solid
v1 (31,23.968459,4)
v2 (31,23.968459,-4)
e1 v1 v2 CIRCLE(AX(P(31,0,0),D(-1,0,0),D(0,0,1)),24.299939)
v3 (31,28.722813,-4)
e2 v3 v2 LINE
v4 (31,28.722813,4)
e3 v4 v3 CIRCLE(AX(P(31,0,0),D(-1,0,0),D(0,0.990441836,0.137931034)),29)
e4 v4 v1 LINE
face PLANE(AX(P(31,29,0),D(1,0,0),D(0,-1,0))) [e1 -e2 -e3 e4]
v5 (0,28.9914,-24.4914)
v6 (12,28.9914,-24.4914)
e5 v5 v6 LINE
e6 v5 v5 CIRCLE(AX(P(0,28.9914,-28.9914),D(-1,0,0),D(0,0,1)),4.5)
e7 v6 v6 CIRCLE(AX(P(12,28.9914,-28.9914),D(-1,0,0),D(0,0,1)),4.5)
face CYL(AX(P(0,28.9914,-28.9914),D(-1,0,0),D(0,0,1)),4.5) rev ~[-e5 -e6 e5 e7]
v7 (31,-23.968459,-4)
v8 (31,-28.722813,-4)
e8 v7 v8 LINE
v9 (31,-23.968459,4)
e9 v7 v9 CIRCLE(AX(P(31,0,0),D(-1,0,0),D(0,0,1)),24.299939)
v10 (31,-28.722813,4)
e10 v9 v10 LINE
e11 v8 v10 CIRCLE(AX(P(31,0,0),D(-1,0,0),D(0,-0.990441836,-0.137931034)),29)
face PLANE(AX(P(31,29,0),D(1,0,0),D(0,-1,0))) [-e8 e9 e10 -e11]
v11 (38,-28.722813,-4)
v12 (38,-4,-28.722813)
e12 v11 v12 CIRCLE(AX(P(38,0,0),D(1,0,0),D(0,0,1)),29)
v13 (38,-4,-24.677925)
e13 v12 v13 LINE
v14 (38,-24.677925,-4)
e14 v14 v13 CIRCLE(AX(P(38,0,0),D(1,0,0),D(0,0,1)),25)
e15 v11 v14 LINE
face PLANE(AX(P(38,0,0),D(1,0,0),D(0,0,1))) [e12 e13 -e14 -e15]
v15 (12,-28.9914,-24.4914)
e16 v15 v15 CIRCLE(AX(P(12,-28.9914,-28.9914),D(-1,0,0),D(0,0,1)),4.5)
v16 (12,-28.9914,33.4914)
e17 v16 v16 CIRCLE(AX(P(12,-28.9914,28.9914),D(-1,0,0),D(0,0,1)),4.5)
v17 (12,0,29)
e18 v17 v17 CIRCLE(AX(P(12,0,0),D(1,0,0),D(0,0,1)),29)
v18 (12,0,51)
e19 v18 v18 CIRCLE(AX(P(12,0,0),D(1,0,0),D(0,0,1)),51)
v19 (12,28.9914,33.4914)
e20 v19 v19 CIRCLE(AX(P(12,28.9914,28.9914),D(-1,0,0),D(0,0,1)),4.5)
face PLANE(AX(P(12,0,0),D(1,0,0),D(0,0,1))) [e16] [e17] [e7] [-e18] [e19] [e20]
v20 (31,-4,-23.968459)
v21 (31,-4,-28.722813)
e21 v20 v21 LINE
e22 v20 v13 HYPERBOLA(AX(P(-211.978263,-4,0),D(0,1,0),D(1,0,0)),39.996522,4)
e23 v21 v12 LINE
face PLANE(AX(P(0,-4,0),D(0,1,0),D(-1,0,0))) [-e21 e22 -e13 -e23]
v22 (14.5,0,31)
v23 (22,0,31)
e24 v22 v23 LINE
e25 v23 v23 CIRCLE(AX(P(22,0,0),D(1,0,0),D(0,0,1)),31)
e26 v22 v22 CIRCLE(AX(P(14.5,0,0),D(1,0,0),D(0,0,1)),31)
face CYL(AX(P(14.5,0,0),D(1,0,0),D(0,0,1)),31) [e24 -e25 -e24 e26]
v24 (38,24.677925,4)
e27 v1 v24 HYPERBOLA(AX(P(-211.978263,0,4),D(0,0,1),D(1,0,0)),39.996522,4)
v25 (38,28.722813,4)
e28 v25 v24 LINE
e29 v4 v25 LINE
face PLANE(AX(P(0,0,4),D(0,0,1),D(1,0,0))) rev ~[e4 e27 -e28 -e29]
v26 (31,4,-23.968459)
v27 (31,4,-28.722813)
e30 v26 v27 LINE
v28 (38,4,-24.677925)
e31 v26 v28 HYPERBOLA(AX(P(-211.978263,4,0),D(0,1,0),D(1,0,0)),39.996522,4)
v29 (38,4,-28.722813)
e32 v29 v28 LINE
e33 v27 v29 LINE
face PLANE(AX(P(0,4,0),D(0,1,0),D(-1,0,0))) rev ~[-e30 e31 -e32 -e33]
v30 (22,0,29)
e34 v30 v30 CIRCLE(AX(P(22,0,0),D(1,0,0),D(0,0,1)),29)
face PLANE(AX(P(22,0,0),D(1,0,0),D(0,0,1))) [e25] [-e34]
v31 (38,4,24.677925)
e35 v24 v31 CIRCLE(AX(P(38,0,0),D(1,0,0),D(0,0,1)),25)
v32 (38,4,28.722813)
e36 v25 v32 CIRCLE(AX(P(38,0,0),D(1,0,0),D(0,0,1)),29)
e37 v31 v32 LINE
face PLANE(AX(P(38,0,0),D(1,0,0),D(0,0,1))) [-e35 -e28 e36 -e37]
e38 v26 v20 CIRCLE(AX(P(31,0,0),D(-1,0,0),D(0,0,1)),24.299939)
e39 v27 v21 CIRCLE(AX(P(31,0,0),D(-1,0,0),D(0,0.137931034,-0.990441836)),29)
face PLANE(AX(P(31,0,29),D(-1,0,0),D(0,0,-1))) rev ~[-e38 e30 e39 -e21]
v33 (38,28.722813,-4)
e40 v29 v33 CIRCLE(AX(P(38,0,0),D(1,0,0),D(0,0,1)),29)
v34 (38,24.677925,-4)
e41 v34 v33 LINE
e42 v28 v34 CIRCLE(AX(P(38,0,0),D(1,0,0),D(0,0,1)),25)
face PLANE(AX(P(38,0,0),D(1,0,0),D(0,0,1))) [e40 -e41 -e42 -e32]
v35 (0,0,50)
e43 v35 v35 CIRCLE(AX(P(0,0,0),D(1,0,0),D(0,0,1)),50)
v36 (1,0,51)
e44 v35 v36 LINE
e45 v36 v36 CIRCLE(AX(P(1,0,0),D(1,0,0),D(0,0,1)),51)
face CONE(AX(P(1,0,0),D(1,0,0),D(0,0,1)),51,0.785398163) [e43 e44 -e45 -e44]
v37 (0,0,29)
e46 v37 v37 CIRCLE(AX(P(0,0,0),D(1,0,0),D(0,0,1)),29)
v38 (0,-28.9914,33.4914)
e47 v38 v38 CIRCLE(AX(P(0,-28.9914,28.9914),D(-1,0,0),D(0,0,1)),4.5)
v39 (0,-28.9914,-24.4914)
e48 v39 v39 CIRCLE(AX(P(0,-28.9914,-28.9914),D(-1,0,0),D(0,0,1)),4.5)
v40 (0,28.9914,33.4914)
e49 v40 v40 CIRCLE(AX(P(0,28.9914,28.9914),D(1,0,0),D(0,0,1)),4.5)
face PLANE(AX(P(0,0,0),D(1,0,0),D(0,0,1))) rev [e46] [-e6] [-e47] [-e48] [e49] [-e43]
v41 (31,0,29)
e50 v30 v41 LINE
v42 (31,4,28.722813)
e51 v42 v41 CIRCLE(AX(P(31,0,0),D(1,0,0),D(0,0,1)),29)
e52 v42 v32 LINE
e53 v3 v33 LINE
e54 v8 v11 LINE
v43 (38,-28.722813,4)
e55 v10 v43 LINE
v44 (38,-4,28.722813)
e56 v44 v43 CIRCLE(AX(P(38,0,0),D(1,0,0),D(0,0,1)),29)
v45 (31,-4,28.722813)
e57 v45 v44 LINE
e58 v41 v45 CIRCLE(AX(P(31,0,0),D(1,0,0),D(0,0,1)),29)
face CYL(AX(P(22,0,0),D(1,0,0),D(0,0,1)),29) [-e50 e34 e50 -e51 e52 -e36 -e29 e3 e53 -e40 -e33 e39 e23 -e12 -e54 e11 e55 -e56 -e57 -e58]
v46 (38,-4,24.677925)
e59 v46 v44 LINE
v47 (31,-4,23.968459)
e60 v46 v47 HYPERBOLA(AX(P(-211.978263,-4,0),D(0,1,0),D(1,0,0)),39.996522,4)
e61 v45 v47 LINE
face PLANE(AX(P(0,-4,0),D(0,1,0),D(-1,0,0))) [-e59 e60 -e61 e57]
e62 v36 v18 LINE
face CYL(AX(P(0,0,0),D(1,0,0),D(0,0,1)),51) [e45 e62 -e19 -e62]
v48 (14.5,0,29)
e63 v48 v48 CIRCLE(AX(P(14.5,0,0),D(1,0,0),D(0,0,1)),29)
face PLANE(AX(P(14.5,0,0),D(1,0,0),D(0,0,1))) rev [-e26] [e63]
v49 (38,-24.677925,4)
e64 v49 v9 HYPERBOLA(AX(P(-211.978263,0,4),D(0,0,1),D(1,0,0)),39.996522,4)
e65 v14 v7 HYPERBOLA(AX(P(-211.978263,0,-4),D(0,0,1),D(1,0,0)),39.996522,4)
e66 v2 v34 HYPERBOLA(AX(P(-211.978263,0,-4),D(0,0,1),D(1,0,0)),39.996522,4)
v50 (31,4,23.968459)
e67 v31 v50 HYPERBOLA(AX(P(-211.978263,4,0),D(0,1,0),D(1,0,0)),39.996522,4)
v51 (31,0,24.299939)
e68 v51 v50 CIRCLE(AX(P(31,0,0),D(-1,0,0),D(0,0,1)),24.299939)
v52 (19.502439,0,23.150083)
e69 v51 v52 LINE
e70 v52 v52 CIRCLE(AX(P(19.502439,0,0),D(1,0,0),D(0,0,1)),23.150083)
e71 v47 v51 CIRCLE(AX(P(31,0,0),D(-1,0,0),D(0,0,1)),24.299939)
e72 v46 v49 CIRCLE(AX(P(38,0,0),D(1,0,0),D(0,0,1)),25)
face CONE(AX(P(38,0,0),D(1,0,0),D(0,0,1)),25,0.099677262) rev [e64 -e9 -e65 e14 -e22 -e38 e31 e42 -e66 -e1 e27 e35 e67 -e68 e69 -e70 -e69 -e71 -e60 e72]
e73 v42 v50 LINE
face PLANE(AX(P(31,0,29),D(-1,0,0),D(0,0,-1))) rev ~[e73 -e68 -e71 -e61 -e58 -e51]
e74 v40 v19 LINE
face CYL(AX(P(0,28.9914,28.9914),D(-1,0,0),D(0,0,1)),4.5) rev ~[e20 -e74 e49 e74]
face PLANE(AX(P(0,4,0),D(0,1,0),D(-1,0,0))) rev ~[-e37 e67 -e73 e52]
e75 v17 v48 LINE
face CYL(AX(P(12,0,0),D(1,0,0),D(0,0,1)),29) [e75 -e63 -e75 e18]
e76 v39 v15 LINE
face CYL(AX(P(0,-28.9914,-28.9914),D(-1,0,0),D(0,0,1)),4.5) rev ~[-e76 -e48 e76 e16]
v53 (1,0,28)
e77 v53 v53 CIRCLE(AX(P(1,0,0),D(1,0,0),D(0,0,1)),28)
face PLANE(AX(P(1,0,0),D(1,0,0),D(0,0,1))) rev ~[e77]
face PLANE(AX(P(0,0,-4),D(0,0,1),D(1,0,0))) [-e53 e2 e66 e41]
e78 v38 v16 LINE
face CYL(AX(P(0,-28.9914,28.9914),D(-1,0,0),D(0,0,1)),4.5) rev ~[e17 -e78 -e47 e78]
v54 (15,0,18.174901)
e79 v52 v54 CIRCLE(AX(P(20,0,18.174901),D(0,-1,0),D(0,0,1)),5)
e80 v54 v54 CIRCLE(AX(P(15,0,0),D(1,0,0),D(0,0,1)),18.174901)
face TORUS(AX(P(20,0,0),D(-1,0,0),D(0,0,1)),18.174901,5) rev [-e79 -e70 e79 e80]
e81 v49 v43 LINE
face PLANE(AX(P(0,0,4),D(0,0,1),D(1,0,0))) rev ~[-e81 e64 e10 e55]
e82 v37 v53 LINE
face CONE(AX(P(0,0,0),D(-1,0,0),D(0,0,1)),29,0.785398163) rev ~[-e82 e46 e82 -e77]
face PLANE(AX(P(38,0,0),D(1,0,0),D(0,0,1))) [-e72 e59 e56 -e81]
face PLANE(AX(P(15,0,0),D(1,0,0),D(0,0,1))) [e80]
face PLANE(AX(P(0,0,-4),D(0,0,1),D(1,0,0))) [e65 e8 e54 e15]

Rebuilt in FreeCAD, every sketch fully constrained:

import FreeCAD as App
import Part
import Sketcher
Q = App.Units.Quantity


def edges_at(feature, points):
    """Names of the edges that pass closest to the given points."""
    edges = feature.Shape.Edges
    near = lambda p: min(range(len(edges)), key=lambda i: edges[i].distToShape(Part.Vertex(*p))[0])
    return sorted({f"Edge{near(p) + 1}" for p in points})

doc = App.newDocument("Part")
body = doc.addObject("PartDesign::Body", "Body")

sketch1 = body.newObject("Sketcher::SketchObject", "Sketch")
sketch1.AttachmentSupport = (doc.getObject("XZ_Plane"), [""])
sketch1.MapMode = "FlatFace"
sketch1.addGeometry([
    Part.LineSegment(App.Vector(0, 29, 0), App.Vector(0, 51, 0)),
    Part.LineSegment(App.Vector(0, 51, 0), App.Vector(12, 51, 0)),
    Part.LineSegment(App.Vector(12, 51, 0), App.Vector(12, 29, 0)),
    Part.LineSegment(App.Vector(12, 29, 0), App.Vector(14.5, 29, 0)),
    Part.LineSegment(App.Vector(14.5, 29, 0), App.Vector(14.5, 31, 0)),
    Part.LineSegment(App.Vector(14.5, 31, 0), App.Vector(22, 31, 0)),
    Part.LineSegment(App.Vector(22, 31, 0), App.Vector(22, 29, 0)),
    Part.LineSegment(App.Vector(22, 29, 0), App.Vector(38, 29, 0)),
    Part.LineSegment(App.Vector(38, 29, 0), App.Vector(38, 25, 0)),
    Part.LineSegment(App.Vector(38, 25, 0), App.Vector(15, 22.6998, 0)),
    Part.LineSegment(App.Vector(15, 22.6998, 0), App.Vector(15, 0, 0)),
    Part.LineSegment(App.Vector(15, 0, 0), App.Vector(1, 0, 0)),
    Part.LineSegment(App.Vector(1, 0, 0), App.Vector(1, 28, 0)),
    Part.LineSegment(App.Vector(1, 28, 0), App.Vector(0, 29, 0)),
], False)
sketch1.addConstraint([
    Sketcher.Constraint("Coincident", 0, 2, 1, 1),
    Sketcher.Constraint("Coincident", 1, 2, 2, 1),
    Sketcher.Constraint("Coincident", 2, 2, 3, 1),
    Sketcher.Constraint("Coincident", 3, 2, 4, 1),
    Sketcher.Constraint("Coincident", 4, 2, 5, 1),
    Sketcher.Constraint("Coincident", 5, 2, 6, 1),
    Sketcher.Constraint("Coincident", 6, 2, 7, 1),
    Sketcher.Constraint("Coincident", 7, 2, 8, 1),
    Sketcher.Constraint("Coincident", 8, 2, 9, 1),
    Sketcher.Constraint("Coincident", 9, 2, 10, 1),
    Sketcher.Constraint("Coincident", 10, 2, 11, 1),
    Sketcher.Constraint("Coincident", 11, 2, 12, 1),
    Sketcher.Constraint("Coincident", 12, 2, 13, 1),
    Sketcher.Constraint("Coincident", 13, 2, 0, 1),
    Sketcher.Constraint("Vertical", 0),
    Sketcher.Constraint("Horizontal", 1),
    Sketcher.Constraint("Vertical", 2),
    Sketcher.Constraint("Horizontal", 3),
    Sketcher.Constraint("Vertical", 4),
    Sketcher.Constraint("Horizontal", 5),
    Sketcher.Constraint("Vertical", 6),
    Sketcher.Constraint("Horizontal", 7),
    Sketcher.Constraint("Vertical", 8),
    Sketcher.Constraint("Vertical", 10),
    Sketcher.Constraint("Horizontal", 11),
    Sketcher.Constraint("Vertical", 12),
    Sketcher.Constraint("PointOnObject", 0, 2, -2),
    Sketcher.Constraint("PointOnObject", 10, 2, -1),
    Sketcher.Constraint("Horizontal", 3, 2, 6, 2),
    Sketcher.Constraint("Horizontal", 7, 2, 13, 2),
    Sketcher.Constraint("DistanceX", 1, 1, 1, 2, 12.0),
    Sketcher.Constraint("DistanceX", 3, 1, 3, 2, 2.5),
    Sketcher.Constraint("DistanceY", -1, 1, 0, 2, 51.0),
    Sketcher.Constraint("DistanceY", -1, 1, 2, 2, 29.0),
    Sketcher.Constraint("DistanceY", -1, 1, 4, 2, 31.0),
    Sketcher.Constraint("DistanceY", -1, 1, 8, 2, 25.0),
    Sketcher.Constraint("DistanceX", -1, 1, 9, 2, 15.0),
    Sketcher.Constraint("DistanceX", -1, 1, 11, 2, 1.0),
    Sketcher.Constraint("DistanceX", 2, 2, 5, 2, 10.0),
    Sketcher.Constraint("DistanceX", 2, 2, 7, 2, 26.0),
    Sketcher.Constraint("DistanceY", 12, 2, 2, 2, 1.0),
    Sketcher.Constraint("Angle", 9, Q("-174.289 deg")),
])
revolution = body.newObject("PartDesign::Revolution", "Revolution")
revolution.Profile = sketch1
revolution.ReferenceAxis = (sketch1, ["H_Axis"])
revolution.Angle = 360

sketch2 = body.newObject("Sketcher::SketchObject", "Sketch001")
sketch2.AttachmentSupport = (doc.getObject("XZ_Plane"), [""])
sketch2.MapMode = "FlatFace"
sketch2.addGeometry([
    Part.LineSegment(App.Vector(31, -29, 0), App.Vector(31, 29, 0)),
    Part.LineSegment(App.Vector(31, 29, 0), App.Vector(38, 29, 0)),
    Part.LineSegment(App.Vector(38, 29, 0), App.Vector(38, -29, 0)),
    Part.LineSegment(App.Vector(38, -29, 0), App.Vector(31, -29, 0)),
], False)
sketch2.addConstraint([
    Sketcher.Constraint("Coincident", 0, 2, 1, 1),
    Sketcher.Constraint("Coincident", 1, 2, 2, 1),
    Sketcher.Constraint("Coincident", 2, 2, 3, 1),
    Sketcher.Constraint("Coincident", 3, 2, 0, 1),
    Sketcher.Constraint("Vertical", 0),
    Sketcher.Constraint("Horizontal", 1),
    Sketcher.Constraint("Vertical", 2),
    Sketcher.Constraint("Horizontal", 3),
    Sketcher.Constraint("DistanceX", 1, 1, 1, 2, 7.0),
    Sketcher.Constraint("DistanceY", 0, 1, 0, 2, 58.0),
    Sketcher.Constraint("DistanceX", -1, 1, 0, 2, 31.0),
    Sketcher.Constraint("DistanceY", -1, 1, 0, 2, 29.0),
])
pocket1 = body.newObject("PartDesign::Pocket", "Pocket")
pocket1.Profile = sketch2
pocket1.Length = 8
pocket1.Midplane = True

sketch3 = body.newObject("Sketcher::SketchObject", "Sketch002")
sketch3.AttachmentSupport = (doc.getObject("XY_Plane"), [""])
sketch3.MapMode = "FlatFace"
sketch3.addGeometry([
    Part.LineSegment(App.Vector(38, -29, 0), App.Vector(38, 29, 0)),
    Part.LineSegment(App.Vector(38, 29, 0), App.Vector(31, 29, 0)),
    Part.LineSegment(App.Vector(31, 29, 0), App.Vector(31, -29, 0)),
    Part.LineSegment(App.Vector(31, -29, 0), App.Vector(38, -29, 0)),
], False)
sketch3.addConstraint([
    Sketcher.Constraint("Coincident", 0, 2, 1, 1),
    Sketcher.Constraint("Coincident", 1, 2, 2, 1),
    Sketcher.Constraint("Coincident", 2, 2, 3, 1),
    Sketcher.Constraint("Coincident", 3, 2, 0, 1),
    Sketcher.Constraint("Vertical", 0),
    Sketcher.Constraint("Horizontal", 1),
    Sketcher.Constraint("Vertical", 2),
    Sketcher.Constraint("Horizontal", 3),
    Sketcher.Constraint("DistanceX", 1, 2, 1, 1, 7.0),
    Sketcher.Constraint("DistanceY", 0, 1, 0, 2, 58.0),
    Sketcher.Constraint("DistanceX", -1, 1, 0, 2, 38.0),
    Sketcher.Constraint("DistanceY", -1, 1, 0, 2, 29.0),
])
pocket2 = body.newObject("PartDesign::Pocket", "Pocket001")
pocket2.Profile = sketch3
pocket2.Length = 8
pocket2.Midplane = True

sketch4 = body.newObject("Sketcher::SketchObject", "Sketch003")
sketch4.AttachmentSupport = (doc.getObject("YZ_Plane"), [""])
sketch4.MapMode = "FlatFace"
sketch4.addGeometry([
    Part.Circle(App.Vector(28.9914, 28.9914, 0), App.Vector(0, 0, 1), 4.5),
    Part.Circle(App.Vector(28.9914, -28.9914, 0), App.Vector(0, 0, 1), 4.5),
    Part.Circle(App.Vector(-28.9914, -28.9914, 0), App.Vector(0, 0, 1), 4.5),
    Part.Circle(App.Vector(-28.9914, 28.9914, 0), App.Vector(0, 0, 1), 4.5),
], False)
sketch4.addConstraint([
    Sketcher.Constraint("Equal", 0, 1),
    Sketcher.Constraint("Equal", 1, 2),
    Sketcher.Constraint("Equal", 2, 3),
    Sketcher.Constraint("Symmetric", 0, 3, 2, 3, -1, 1),
    Sketcher.Constraint("Symmetric", 1, 3, 3, 3, -1, 1),
    Sketcher.Constraint("Symmetric", 1, 3, 2, 3, -2),
    Sketcher.Constraint("Diameter", 0, 9.0),
    Sketcher.Constraint("DistanceX", -1, 1, 0, 3, 28.9914),
    Sketcher.Constraint("DistanceY", -1, 1, 0, 3, 28.9914),
])
pocket3 = body.newObject("PartDesign::Pocket", "Pocket002")
pocket3.Profile = sketch4
pocket3.Length = 12
pocket3.Reversed = True
doc.recompute()

chamfer = body.newObject("PartDesign::Chamfer", "Chamfer")
chamfer.Base = (pocket3, edges_at(pocket3, [(0, 0, -51)]))
chamfer.Size = 1
doc.recompute()

fillet = body.newObject("PartDesign::Fillet", "Fillet")
fillet.Base = (chamfer, edges_at(chamfer, [(15, 0, -22.7)]))
fillet.Radius = 5

doc.recompute()
